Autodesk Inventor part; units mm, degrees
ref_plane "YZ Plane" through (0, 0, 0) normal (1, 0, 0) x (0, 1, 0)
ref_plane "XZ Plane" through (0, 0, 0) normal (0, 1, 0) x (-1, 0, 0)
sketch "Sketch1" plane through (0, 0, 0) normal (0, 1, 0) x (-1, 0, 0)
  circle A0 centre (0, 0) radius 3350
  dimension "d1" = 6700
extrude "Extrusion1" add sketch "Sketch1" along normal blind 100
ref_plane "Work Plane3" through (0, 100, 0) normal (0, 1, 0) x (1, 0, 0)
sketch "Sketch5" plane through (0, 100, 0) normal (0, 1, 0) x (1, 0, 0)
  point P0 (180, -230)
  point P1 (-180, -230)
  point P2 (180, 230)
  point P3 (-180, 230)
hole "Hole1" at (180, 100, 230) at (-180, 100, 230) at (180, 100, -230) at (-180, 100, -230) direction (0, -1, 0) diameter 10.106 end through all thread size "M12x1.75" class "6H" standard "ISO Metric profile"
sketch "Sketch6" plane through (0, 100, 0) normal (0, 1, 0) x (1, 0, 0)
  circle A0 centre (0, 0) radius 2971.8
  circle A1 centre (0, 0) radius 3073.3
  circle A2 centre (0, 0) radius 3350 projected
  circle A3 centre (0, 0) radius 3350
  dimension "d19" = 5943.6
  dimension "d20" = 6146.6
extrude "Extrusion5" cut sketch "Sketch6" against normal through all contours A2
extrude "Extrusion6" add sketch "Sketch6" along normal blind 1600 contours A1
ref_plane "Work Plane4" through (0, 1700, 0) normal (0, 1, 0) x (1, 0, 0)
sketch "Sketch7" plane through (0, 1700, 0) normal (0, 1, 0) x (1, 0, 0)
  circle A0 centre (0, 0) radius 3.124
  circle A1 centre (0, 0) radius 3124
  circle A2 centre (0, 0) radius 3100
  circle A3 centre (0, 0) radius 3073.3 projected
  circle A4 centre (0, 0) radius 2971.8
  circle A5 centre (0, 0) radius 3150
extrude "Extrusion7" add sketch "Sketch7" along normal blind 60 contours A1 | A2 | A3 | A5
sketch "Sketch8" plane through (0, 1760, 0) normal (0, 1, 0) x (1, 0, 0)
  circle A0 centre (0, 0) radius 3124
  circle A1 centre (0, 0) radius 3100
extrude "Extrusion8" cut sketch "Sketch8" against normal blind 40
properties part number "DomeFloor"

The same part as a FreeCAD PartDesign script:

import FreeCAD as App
import Part
import Sketcher

V = App.Vector
Q = App.Units.Quantity

doc = App.newDocument("Part")
body = doc.addObject("PartDesign::Body", "Body")

sketch1 = body.newObject("Sketcher::SketchObject", "Sketch")
sketch1.AttachmentSupport = (doc.getObject("XZ_Plane"), [""])
sketch1.MapMode = "FlatFace"
sketch1.addGeometry(Part.Circle(V(0, 0, 0), V(0, 0, 1), 3350), False)
sketch1.addConstraint(Sketcher.Constraint("Coincident", 0, 3, -1, 1))
sketch1.addConstraint(Sketcher.Constraint("Diameter", 0, Q("6700 mm")))
pad1 = body.newObject("PartDesign::Pad", "Pad")
pad1.Profile = sketch1
pad1.Length = 100
pad1.Reversed = True

sketch2 = body.newObject("Sketcher::SketchObject", "Sketch001")
sketch2.AttachmentSupport = (doc.getObject("XZ_Plane"), [""])
sketch2.MapMode = "FlatFace"
sketch2.AttachmentOffset = App.Placement(V(0, 0, -100), App.Rotation())
sketch2.addGeometry(Part.Circle(V(180, 230, 0), V(0, 0, 1), 5.053), False)
sketch2.addGeometry(Part.Circle(V(-180, 230, 0), V(0, 0, 1), 5.053), False)
sketch2.addGeometry(Part.Circle(V(180, -230, 0), V(0, 0, 1), 5.053), False)
sketch2.addGeometry(Part.Circle(V(-180, -230, 0), V(0, 0, 1), 5.053), False)
sketch2.addConstraint(Sketcher.Constraint("Equal", 0, 1))
sketch2.addConstraint(Sketcher.Constraint("Equal", 1, 2))
sketch2.addConstraint(Sketcher.Constraint("Equal", 2, 3))
sketch2.addConstraint(Sketcher.Constraint("Symmetric", 1, 3, 2, 3, -1, 1))
sketch2.addConstraint(Sketcher.Constraint("Symmetric", 0, 3, 3, 3, -1, 1))
sketch2.addConstraint(Sketcher.Constraint("Symmetric", 0, 3, 1, 3, -2))
sketch2.addConstraint(Sketcher.Constraint("Diameter", 0, Q("10.106 mm")))
sketch2.addConstraint(Sketcher.Constraint("DistanceX", -1, 1, 0, 3, Q("180 mm")))
sketch2.addConstraint(Sketcher.Constraint("DistanceY", -1, 1, 0, 3, Q("230 mm")))
doc.recompute()
hole = body.newObject("PartDesign::Hole", "Hole")
hole.Profile = sketch2
hole.ThreadType = "None"
hole.Diameter = 10.106
hole.DepthType = "ThroughAll"
hole.Reversed = True

sketch3 = body.newObject("Sketcher::SketchObject", "Sketch002")
sketch3.AttachmentSupport = (doc.getObject("XZ_Plane"), [""])
sketch3.MapMode = "FlatFace"
sketch3.AttachmentOffset = App.Placement(V(0, 0, -100), App.Rotation())
sketch3.addGeometry(Part.Circle(V(0, 0, 0), V(0, 0, 1), 3350), False)
sketch3.addGeometry(Part.Circle(V(0, 0, 0), V(0, 0, 1), 3073.3), False)
sketch3.addConstraint(Sketcher.Constraint("Coincident", 0, 3, -1, 1))
sketch3.addConstraint(Sketcher.Constraint("Coincident", 1, 3, -1, 1))
sketch3.addConstraint(Sketcher.Constraint("Diameter", 1, Q("6146.6 mm")))
sketch3.addConstraint(Sketcher.Constraint("Diameter", 0, Q("6700 mm")))
pocket1 = body.newObject("PartDesign::Pocket", "Pocket")
pocket1.Profile = sketch3
pocket1.Type = "ThroughAll"
pocket1.Reversed = True

sketch4 = body.newObject("Sketcher::SketchObject", "Sketch003")
sketch4.AttachmentSupport = (doc.getObject("XZ_Plane"), [""])
sketch4.MapMode = "FlatFace"
sketch4.AttachmentOffset = App.Placement(V(0, 0, -100), App.Rotation())
sketch4.addGeometry(Part.Circle(V(0, 0, 0), V(0, 0, 1), 3073.3), False)
sketch4.addGeometry(Part.Circle(V(0, 0, 0), V(0, 0, 1), 2971.8), False)
sketch4.addConstraint(Sketcher.Constraint("Coincident", 0, 3, -1, 1))
sketch4.addConstraint(Sketcher.Constraint("Coincident", 1, 3, -1, 1))
sketch4.addConstraint(Sketcher.Constraint("Diameter", 0, Q("6146.6 mm")))
sketch4.addConstraint(Sketcher.Constraint("Diameter", 1, Q("5943.6 mm")))
pad2 = body.newObject("PartDesign::Pad", "Pad001")
pad2.Profile = sketch4
pad2.Length = 1600
pad2.Reversed = True

sketch5 = body.newObject("Sketcher::SketchObject", "Sketch004")
sketch5.AttachmentSupport = (doc.getObject("XZ_Plane"), [""])
sketch5.MapMode = "FlatFace"
sketch5.AttachmentOffset = App.Placement(V(0, 0, -1700), App.Rotation())
sketch5.addGeometry(Part.Circle(V(0, 0, 0), V(0, 0, 1), 3150), False)
sketch5.addGeometry(Part.Circle(V(0, 0, 0), V(0, 0, 1), 2971.8), False)
sketch5.addConstraint(Sketcher.Constraint("Coincident", 0, 3, -1, 1))
sketch5.addConstraint(Sketcher.Constraint("Coincident", 1, 3, -1, 1))
sketch5.addConstraint(Sketcher.Constraint("Diameter", 0, Q("6300 mm")))
sketch5.addConstraint(Sketcher.Constraint("Diameter", 1, Q("5943.6 mm")))
pad3 = body.newObject("PartDesign::Pad", "Pad002")
pad3.Profile = sketch5
pad3.Length = 60
pad3.Reversed = True

sketch6 = body.newObject("Sketcher::SketchObject", "Sketch005")
sketch6.AttachmentSupport = (doc.getObject("XZ_Plane"), [""])
sketch6.MapMode = "FlatFace"
sketch6.AttachmentOffset = App.Placement(V(0, 0, -1760), App.Rotation())
sketch6.addGeometry(Part.Circle(V(0, 0, 0), V(0, 0, 1), 3124), False)
sketch6.addGeometry(Part.Circle(V(0, 0, 0), V(0, 0, 1), 3100), False)
sketch6.addConstraint(Sketcher.Constraint("Coincident", 0, 3, -1, 1))
sketch6.addConstraint(Sketcher.Constraint("Coincident", 1, 3, -1, 1))
sketch6.addConstraint(Sketcher.Constraint("Diameter", 0, Q("6248 mm")))
sketch6.addConstraint(Sketcher.Constraint("Diameter", 1, Q("6200 mm")))
pocket2 = body.newObject("PartDesign::Pocket", "Pocket001")
pocket2.Profile = sketch6
pocket2.Length = 40
pocket2.Reversed = True

doc.recompute()
